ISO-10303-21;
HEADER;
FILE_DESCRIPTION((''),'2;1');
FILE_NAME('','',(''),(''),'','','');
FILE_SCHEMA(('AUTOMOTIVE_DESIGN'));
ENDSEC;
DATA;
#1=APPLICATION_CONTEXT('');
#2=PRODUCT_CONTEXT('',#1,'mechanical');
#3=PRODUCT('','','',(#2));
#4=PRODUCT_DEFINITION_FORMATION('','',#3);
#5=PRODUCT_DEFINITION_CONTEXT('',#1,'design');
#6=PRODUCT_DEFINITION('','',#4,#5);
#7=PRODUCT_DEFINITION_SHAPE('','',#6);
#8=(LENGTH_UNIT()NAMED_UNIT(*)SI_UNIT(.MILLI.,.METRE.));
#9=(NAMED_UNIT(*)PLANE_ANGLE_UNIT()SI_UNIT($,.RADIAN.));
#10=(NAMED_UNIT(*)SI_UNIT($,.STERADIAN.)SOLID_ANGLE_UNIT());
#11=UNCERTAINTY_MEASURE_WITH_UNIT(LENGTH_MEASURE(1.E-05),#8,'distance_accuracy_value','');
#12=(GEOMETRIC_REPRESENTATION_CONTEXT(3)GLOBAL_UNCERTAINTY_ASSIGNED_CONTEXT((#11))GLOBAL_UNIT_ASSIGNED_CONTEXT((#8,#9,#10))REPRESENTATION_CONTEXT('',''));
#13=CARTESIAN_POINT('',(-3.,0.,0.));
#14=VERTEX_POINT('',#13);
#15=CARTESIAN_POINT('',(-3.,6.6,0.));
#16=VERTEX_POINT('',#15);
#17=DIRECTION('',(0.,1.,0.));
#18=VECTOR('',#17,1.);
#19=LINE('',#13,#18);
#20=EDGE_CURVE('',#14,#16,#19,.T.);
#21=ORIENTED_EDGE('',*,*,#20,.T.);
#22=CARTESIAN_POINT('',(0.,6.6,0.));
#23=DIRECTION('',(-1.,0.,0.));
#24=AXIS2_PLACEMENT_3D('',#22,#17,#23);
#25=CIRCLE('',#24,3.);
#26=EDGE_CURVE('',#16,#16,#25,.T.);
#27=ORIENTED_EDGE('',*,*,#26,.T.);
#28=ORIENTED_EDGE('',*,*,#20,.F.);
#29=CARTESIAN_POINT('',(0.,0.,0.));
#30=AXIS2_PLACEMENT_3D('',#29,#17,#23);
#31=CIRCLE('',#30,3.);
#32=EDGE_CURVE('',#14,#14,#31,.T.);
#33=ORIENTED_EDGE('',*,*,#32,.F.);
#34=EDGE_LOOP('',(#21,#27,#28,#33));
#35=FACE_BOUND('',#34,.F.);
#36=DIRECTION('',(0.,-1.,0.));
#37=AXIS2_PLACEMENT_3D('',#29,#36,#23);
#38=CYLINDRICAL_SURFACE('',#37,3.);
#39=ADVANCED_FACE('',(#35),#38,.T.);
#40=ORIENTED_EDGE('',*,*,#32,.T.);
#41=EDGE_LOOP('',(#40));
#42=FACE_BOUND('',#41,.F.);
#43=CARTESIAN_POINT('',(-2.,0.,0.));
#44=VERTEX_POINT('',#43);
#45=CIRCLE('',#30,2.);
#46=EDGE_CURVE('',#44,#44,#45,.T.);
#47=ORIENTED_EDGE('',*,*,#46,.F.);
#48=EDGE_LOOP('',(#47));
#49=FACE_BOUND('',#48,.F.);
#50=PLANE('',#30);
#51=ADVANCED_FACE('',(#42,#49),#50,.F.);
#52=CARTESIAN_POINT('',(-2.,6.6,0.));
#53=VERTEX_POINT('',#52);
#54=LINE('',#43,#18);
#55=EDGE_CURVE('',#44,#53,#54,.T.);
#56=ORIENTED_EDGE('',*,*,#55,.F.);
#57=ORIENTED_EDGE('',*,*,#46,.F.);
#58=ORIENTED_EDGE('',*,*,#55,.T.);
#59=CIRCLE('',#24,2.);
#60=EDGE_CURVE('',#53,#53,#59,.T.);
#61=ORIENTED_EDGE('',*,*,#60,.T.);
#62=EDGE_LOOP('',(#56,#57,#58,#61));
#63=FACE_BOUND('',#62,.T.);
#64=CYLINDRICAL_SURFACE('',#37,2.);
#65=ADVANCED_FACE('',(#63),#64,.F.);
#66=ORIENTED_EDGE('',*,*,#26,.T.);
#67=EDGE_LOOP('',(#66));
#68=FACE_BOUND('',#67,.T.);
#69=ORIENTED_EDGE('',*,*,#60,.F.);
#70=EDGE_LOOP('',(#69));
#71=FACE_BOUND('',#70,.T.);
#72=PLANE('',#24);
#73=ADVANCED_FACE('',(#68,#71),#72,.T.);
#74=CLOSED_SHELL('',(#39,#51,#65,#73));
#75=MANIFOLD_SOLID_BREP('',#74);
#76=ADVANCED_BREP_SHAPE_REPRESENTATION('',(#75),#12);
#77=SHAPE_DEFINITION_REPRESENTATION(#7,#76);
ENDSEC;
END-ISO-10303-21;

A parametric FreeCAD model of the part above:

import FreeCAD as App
import Part
import Sketcher

doc = App.newDocument("Part")
body = doc.addObject("PartDesign::Body", "Body")

# Sketch on XZ plane
sketch1 = body.newObject("Sketcher::SketchObject", "Sketch")
sketch1.AttachmentSupport = (doc.getObject("XZ_Plane"), [""])
sketch1.MapMode = "FlatFace"
sketch1.addGeometry([
    Part.Circle(App.Vector(0, 0, 0), App.Vector(0, 0, 1), 3),
    Part.Circle(App.Vector(0, 0, 0), App.Vector(0, 0, 1), 2),
], False)
sketch1.addConstraint([
    Sketcher.Constraint("Coincident", 0, 3, -1, 1),
    Sketcher.Constraint("Coincident", 1, 3, -1, 1),
    Sketcher.Constraint("Diameter", 0, 6.0),
    Sketcher.Constraint("Diameter", 1, 4.0),
])
pad1 = body.newObject("PartDesign::Pad", "Pad")
pad1.Profile = sketch1
pad1.Length = 6.6
pad1.Reversed = True

doc.recompute()
